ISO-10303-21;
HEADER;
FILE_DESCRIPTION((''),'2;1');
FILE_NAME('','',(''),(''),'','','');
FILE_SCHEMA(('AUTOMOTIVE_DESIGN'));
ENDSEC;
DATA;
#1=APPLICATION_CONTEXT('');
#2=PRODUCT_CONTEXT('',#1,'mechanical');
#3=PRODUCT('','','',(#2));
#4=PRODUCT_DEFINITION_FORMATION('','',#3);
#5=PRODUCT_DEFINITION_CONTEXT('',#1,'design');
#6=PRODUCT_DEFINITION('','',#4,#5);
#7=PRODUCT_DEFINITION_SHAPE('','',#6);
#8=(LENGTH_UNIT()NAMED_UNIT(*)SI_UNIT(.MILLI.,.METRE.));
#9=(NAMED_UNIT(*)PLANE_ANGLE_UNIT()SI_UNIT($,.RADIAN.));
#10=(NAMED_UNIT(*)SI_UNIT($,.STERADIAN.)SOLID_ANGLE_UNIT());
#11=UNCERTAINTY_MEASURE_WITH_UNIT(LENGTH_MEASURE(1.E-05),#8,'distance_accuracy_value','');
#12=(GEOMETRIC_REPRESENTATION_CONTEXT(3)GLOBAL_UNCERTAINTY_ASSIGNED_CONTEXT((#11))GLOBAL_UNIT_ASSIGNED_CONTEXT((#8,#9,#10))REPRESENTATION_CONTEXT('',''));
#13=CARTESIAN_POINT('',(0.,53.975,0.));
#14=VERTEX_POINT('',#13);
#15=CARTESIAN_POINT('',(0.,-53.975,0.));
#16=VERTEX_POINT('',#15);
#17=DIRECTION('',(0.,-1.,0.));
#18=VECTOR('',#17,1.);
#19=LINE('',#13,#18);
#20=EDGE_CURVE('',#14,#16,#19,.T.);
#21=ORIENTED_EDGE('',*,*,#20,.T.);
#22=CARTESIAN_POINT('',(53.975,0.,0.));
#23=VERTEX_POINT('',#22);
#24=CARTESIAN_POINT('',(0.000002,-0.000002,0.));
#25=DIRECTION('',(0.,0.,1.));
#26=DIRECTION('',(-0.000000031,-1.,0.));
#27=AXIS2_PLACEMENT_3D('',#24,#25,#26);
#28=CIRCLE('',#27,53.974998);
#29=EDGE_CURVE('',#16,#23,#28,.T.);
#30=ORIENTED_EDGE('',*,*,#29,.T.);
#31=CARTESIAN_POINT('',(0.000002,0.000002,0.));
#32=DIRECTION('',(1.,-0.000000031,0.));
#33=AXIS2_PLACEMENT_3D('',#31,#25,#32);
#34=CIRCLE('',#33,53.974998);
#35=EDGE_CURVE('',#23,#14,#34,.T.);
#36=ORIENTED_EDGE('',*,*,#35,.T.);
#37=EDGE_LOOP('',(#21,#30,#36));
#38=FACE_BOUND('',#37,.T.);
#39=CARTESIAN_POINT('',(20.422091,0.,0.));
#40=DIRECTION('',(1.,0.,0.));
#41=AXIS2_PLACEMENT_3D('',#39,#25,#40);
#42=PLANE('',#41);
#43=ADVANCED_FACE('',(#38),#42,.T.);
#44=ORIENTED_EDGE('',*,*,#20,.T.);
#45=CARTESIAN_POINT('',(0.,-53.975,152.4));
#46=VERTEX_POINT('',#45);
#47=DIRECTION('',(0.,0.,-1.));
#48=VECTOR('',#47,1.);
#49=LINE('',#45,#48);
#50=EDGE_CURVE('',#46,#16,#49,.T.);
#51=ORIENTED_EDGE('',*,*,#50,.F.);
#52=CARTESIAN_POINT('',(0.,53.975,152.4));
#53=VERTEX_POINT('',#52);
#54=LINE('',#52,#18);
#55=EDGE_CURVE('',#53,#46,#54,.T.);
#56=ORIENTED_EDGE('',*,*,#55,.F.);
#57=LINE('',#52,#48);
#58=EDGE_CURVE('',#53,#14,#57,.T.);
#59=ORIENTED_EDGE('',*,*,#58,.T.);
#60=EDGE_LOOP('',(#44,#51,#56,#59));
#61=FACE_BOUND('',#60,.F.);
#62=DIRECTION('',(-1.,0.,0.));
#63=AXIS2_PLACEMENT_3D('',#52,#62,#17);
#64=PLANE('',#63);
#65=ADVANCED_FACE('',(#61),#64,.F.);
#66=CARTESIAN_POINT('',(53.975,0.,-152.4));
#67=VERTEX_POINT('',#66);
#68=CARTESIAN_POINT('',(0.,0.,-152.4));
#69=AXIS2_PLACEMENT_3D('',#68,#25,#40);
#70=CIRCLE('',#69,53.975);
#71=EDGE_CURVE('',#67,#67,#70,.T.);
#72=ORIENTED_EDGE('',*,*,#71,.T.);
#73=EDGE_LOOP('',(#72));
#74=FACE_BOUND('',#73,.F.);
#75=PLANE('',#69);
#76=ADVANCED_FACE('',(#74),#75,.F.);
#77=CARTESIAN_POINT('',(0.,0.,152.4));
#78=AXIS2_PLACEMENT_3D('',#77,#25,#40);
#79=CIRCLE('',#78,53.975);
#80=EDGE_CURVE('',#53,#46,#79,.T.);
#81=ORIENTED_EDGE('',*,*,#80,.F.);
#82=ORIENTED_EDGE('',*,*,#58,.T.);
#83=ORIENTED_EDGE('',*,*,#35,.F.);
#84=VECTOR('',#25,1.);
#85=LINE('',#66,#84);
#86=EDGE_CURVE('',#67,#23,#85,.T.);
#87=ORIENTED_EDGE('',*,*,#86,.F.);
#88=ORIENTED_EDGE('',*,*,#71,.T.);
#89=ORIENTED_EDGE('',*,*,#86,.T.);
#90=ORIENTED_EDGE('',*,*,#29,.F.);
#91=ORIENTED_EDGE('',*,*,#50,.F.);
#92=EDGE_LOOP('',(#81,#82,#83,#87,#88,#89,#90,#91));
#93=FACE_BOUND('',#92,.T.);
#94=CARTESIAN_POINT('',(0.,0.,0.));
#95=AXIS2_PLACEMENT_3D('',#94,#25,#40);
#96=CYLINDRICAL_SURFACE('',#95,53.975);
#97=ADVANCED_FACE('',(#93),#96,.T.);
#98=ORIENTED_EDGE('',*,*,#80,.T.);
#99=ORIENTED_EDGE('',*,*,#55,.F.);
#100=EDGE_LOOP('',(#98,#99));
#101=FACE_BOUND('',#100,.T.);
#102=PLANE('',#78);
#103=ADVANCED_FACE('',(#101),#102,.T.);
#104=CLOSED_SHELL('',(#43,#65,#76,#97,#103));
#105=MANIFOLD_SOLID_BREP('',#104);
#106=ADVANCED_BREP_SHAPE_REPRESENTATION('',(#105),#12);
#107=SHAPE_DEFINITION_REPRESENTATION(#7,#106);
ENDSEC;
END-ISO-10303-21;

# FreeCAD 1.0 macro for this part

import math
import FreeCAD as App
import Part
import Sketcher
from FreeCAD import Vector
Q = App.Units.Quantity

doc = App.newDocument("Part")
body = doc.addObject("PartDesign::Body", "Body")

# Sketch on XY plane
sketch1 = body.newObject("Sketcher::SketchObject", "Sketch")
sketch1.AttachmentSupport = (doc.getObject("XY_Plane"), [""])
sketch1.MapMode = "FlatFace"
sketch1.addGeometry(Part.Circle(Vector(0, 0, 0), Vector(0, 0, 1), 53.975), False)
sketch1.addConstraint(Sketcher.Constraint("Coincident", 0, 3, -1, 1))
sketch1.addConstraint(Sketcher.Constraint("Diameter", 0, Q("4.25 in")))
pad1 = body.newObject("PartDesign::Pad", "Pad")
pad1.Profile = sketch1
pad1.Length = Q("12 in")
pad1.Midplane = True

# Sketch on XY plane
sketch2 = body.newObject("Sketcher::SketchObject", "Sketch001")
sketch2.AttachmentSupport = (doc.getObject("XY_Plane"), [""])
sketch2.MapMode = "FlatFace"
sketch2.AttachmentOffset = App.Placement(Vector(0, 0, 6 * 25.4), App.Rotation())
sketch2.addGeometry(Part.LineSegment(Vector(0, 53.975, 0), Vector(0, -53.975, 0)), False)
sketch2.addGeometry(Part.ArcOfCircle(Part.Circle(Vector(0.000002, -0.000002, 0), Vector(0, 0, 1), 53.974998), math.radians(-90.000002), math.radians(0.000002)), False)
sketch2.addGeometry(Part.ArcOfCircle(Part.Circle(Vector(0.000002, 0.000002, 0), Vector(0, 0, 1), 53.974998), math.radians(-0.000002), math.radians(90.000002)), False)
sketch2.addConstraint(Sketcher.Constraint("Coincident", 0, 2, 1, 1))
sketch2.addConstraint(Sketcher.Constraint("Tangent", 1, 2, 2, 1))
sketch2.addConstraint(Sketcher.Constraint("Coincident", 2, 2, 0, 1))
sketch2.addConstraint(Sketcher.Constraint("Vertical", 0))
sketch2.addConstraint(Sketcher.Constraint("Coincident", 1, 3, -1, 1))
sketch2.addConstraint(Sketcher.Constraint("Equal", 1, 2))
sketch2.addConstraint(Sketcher.Constraint("PointOnObject", 0, 2, -2))
sketch2.addConstraint(Sketcher.Constraint("PointOnObject", 1, 2, -1))
sketch2.addConstraint(Sketcher.Constraint("Radius", 1, Q("2.1249999 in")))
pocket1 = body.newObject("PartDesign::Pocket", "Pocket")
pocket1.Profile = sketch2
pocket1.Length = Q("6 in")

doc.recompute()
